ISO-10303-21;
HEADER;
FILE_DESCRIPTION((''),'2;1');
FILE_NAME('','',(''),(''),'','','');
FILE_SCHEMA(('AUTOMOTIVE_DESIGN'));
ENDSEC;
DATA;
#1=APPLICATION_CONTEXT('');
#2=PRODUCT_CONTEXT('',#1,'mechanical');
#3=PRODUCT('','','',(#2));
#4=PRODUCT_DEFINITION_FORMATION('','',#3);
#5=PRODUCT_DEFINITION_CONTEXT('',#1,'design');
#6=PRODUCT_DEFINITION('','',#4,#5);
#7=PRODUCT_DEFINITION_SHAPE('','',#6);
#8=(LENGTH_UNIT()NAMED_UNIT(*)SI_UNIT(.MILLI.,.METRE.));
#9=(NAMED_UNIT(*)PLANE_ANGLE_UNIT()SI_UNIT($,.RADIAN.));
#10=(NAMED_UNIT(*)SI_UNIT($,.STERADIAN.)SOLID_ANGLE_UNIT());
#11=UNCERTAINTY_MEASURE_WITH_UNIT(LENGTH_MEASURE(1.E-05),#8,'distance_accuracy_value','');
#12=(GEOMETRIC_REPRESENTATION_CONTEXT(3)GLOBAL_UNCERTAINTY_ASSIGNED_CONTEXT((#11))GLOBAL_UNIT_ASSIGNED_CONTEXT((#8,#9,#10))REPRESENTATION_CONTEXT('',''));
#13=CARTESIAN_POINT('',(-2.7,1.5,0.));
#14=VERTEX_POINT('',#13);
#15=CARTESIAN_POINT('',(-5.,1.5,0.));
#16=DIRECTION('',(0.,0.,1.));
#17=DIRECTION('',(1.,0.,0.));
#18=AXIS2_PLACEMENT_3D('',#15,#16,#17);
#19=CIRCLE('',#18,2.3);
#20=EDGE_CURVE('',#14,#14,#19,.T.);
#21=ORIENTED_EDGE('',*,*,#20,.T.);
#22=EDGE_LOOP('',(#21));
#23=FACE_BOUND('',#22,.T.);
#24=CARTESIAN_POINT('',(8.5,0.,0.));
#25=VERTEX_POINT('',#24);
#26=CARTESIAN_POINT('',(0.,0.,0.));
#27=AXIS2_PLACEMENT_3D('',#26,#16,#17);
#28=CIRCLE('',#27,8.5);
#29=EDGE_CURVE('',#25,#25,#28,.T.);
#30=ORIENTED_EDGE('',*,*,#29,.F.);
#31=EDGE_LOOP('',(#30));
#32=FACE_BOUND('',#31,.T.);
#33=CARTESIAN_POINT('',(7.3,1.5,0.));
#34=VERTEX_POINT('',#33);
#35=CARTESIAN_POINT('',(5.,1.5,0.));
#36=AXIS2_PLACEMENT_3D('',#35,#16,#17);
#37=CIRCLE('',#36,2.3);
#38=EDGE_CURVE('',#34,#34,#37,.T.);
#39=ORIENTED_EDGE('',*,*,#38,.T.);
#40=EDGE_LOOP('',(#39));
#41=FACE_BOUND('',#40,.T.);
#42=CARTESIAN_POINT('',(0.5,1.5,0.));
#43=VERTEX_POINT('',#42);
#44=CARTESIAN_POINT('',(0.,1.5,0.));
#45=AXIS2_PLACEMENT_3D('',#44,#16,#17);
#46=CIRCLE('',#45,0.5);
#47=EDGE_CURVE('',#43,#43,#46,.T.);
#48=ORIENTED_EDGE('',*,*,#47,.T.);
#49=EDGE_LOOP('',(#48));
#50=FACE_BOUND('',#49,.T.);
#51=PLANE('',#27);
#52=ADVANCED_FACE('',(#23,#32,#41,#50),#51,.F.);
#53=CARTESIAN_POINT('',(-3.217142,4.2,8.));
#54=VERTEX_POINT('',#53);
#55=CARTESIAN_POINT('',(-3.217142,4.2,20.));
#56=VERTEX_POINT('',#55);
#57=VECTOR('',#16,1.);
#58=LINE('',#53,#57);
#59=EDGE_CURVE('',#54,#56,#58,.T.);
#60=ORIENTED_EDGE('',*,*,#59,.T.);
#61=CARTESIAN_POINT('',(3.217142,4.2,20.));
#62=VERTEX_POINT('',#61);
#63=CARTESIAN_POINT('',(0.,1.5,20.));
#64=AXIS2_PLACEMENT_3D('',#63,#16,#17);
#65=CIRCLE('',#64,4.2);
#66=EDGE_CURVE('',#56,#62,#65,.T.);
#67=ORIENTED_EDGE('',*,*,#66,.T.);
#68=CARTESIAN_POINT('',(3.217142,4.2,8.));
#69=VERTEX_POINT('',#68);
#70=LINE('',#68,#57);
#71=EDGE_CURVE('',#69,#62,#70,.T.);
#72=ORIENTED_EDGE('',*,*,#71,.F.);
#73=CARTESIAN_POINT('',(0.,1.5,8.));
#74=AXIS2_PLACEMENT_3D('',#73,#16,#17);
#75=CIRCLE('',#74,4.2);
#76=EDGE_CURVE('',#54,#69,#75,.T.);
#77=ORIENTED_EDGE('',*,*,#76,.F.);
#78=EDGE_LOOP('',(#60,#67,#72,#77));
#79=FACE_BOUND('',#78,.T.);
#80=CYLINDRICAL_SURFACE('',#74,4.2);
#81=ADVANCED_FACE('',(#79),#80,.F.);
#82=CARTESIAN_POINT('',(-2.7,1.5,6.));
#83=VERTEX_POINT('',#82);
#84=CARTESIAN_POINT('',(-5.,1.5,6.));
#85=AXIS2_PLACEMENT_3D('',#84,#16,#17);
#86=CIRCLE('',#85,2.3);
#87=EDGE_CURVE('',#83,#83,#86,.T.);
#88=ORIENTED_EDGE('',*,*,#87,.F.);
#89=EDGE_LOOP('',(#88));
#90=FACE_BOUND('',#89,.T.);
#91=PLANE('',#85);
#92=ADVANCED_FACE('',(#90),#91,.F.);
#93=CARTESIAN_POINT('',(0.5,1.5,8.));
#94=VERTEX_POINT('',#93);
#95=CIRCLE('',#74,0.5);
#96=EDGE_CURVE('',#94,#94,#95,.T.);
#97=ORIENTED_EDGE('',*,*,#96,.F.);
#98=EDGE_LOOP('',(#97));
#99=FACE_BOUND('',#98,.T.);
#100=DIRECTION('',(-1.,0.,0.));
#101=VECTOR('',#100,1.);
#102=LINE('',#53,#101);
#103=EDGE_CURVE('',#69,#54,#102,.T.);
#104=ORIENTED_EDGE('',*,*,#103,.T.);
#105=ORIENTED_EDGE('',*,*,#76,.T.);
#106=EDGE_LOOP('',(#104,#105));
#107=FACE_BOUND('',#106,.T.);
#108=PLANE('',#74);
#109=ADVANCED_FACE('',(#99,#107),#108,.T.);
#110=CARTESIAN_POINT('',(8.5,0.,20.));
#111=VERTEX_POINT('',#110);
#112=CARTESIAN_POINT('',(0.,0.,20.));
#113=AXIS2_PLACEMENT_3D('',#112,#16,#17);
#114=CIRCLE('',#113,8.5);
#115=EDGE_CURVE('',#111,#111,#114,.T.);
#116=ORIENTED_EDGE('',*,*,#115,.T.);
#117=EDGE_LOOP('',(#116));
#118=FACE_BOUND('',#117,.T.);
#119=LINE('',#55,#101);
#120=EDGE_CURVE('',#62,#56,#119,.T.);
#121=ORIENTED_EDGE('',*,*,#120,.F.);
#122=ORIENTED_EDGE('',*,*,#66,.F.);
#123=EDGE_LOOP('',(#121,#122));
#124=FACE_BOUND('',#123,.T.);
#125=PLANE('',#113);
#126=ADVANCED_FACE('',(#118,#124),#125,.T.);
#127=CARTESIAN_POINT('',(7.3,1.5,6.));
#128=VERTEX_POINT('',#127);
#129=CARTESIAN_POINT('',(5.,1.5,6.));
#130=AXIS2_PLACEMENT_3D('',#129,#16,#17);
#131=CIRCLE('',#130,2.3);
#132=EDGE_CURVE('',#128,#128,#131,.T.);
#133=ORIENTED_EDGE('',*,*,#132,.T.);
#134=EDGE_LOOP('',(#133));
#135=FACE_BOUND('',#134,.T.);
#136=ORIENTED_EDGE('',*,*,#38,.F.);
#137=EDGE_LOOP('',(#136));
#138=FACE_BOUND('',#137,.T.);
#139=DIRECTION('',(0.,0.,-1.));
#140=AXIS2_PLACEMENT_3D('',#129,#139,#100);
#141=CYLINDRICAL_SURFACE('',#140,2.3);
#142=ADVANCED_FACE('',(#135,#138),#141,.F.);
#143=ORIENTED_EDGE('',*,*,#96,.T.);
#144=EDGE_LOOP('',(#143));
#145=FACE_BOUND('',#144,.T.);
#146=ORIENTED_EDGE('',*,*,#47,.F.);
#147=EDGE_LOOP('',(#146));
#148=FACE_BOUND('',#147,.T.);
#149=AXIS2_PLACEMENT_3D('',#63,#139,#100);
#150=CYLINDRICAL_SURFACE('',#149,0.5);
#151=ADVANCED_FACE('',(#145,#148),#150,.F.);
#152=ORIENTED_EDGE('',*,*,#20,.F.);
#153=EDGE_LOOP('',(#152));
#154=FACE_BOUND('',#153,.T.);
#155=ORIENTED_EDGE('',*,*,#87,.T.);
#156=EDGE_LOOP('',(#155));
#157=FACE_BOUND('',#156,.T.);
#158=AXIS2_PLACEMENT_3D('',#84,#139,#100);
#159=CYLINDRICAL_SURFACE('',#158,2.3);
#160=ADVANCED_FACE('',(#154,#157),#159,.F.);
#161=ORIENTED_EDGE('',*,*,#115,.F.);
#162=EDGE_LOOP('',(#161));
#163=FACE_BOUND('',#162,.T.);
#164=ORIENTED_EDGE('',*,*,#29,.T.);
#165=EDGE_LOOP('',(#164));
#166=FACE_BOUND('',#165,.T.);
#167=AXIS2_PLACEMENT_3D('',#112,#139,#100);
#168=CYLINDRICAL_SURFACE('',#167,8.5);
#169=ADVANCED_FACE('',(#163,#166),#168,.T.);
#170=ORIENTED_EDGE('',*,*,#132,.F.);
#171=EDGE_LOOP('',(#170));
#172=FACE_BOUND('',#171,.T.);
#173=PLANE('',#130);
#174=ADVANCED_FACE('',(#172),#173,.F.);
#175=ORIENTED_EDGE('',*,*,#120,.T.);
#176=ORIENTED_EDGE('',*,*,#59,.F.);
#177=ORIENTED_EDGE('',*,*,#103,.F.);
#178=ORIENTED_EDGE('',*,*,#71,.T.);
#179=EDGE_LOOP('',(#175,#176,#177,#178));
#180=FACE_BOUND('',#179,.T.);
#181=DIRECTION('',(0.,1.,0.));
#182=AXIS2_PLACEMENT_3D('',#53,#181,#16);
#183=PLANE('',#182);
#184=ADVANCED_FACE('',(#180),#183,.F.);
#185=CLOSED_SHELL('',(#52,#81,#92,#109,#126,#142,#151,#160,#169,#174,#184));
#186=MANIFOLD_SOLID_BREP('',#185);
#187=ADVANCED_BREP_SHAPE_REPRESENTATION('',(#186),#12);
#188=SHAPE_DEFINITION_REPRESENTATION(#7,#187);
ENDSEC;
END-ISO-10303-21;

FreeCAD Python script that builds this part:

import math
import FreeCAD as App
import Part
import Sketcher

V = App.Vector
Q = App.Units.Quantity

doc = App.newDocument("Part")
body = doc.addObject("PartDesign::Body", "Body")

# Sketch on XY plane
sketch1 = body.newObject("Sketcher::SketchObject", "Sketch")
sketch1.AttachmentSupport = (doc.getObject("XY_Plane"), [""])
sketch1.MapMode = "FlatFace"
sketch1.addGeometry([
    Part.Circle(V(0, 0, 0), V(0, 0, 1), 8.5),
    Part.Circle(V(0, 1.5, 0), V(0, 0, 1), 0.5),
], False)
sketch1.addConstraint([
    Sketcher.Constraint("Coincident", 0, 3, -1, 1),
    Sketcher.Constraint("PointOnObject", 1, 3, -2),
    Sketcher.Constraint("Diameter", 0, Q("17 mm")),
    Sketcher.Constraint("Diameter", 1, Q("1 mm")),
    Sketcher.Constraint("DistanceY", -1, 1, 1, 3, Q("1.5 mm")),
])
pad1 = body.newObject("PartDesign::Pad", "Pad")
pad1.Profile = sketch1
pad1.Length = 20

# Sketch on XY plane
sketch2 = body.newObject("Sketcher::SketchObject", "Sketch001")
sketch2.AttachmentSupport = (doc.getObject("XY_Plane"), [""])
sketch2.MapMode = "FlatFace"
sketch2.addGeometry([
    Part.Circle(V(0, 1.5, 0), V(0, 0, 1), 0.5),
    Part.Circle(V(-5, 1.5, 0), V(0, 0, 1), 2.3),
    Part.Circle(V(5, 1.5, 0), V(0, 0, 1), 2.3),
], False)
sketch2.addConstraint([
    Sketcher.Constraint("Equal", 1, 2),
    Sketcher.Constraint("Symmetric", 1, 3, 2, 3, -2),
    Sketcher.Constraint("PointOnObject", 0, 3, -2),
    Sketcher.Constraint("Horizontal", 0, 3, 1, 3),
    Sketcher.Constraint("Diameter", 0, Q("1 mm")),
    Sketcher.Constraint("Diameter", 1, Q("4.6 mm")),
    Sketcher.Constraint("DistanceX", 1, 3, -1, 1, Q("5 mm")),
    Sketcher.Constraint("DistanceY", -1, 1, 0, 3, Q("1.5 mm")),
])
pocket1 = body.newObject("PartDesign::Pocket", "Pocket")
pocket1.Profile = sketch2
pocket1.Length = 6
pocket1.Reversed = True

# Sketch on XY plane
sketch3 = body.newObject("Sketcher::SketchObject", "Sketch002")
sketch3.AttachmentSupport = (doc.getObject("XY_Plane"), [""])
sketch3.MapMode = "FlatFace"
sketch3.AttachmentOffset = App.Placement(V(0, 0, 20), App.Rotation())
sketch3.addGeometry([
    Part.LineSegment(V(3.217142, 4.2, 0), V(-3.217142, 4.2, 0)),
    Part.ArcOfCircle(Part.Circle(V(0, 1.5, 0), V(0, 0, 1), 4.2), math.radians(139.994799), math.radians(400.005201)),
], False)
sketch3.addConstraint([
    Sketcher.Constraint("Coincident", 0, 1, 1, 2),
    Sketcher.Constraint("Coincident", 1, 1, 0, 2),
    Sketcher.Constraint("Horizontal", 0),
    Sketcher.Constraint("PointOnObject", 1, 3, -2),
    Sketcher.Constraint("Radius", 1, Q("4.2 mm")),
    Sketcher.Constraint("DistanceY", -1, 1, 1, 3, Q("1.5 mm")),
    Sketcher.Constraint("DistanceY", -1, 1, 0, 1, Q("4.2 mm")),
])
pocket2 = body.newObject("PartDesign::Pocket", "Pocket001")
pocket2.Profile = sketch3
pocket2.Length = 12

doc.recompute()
